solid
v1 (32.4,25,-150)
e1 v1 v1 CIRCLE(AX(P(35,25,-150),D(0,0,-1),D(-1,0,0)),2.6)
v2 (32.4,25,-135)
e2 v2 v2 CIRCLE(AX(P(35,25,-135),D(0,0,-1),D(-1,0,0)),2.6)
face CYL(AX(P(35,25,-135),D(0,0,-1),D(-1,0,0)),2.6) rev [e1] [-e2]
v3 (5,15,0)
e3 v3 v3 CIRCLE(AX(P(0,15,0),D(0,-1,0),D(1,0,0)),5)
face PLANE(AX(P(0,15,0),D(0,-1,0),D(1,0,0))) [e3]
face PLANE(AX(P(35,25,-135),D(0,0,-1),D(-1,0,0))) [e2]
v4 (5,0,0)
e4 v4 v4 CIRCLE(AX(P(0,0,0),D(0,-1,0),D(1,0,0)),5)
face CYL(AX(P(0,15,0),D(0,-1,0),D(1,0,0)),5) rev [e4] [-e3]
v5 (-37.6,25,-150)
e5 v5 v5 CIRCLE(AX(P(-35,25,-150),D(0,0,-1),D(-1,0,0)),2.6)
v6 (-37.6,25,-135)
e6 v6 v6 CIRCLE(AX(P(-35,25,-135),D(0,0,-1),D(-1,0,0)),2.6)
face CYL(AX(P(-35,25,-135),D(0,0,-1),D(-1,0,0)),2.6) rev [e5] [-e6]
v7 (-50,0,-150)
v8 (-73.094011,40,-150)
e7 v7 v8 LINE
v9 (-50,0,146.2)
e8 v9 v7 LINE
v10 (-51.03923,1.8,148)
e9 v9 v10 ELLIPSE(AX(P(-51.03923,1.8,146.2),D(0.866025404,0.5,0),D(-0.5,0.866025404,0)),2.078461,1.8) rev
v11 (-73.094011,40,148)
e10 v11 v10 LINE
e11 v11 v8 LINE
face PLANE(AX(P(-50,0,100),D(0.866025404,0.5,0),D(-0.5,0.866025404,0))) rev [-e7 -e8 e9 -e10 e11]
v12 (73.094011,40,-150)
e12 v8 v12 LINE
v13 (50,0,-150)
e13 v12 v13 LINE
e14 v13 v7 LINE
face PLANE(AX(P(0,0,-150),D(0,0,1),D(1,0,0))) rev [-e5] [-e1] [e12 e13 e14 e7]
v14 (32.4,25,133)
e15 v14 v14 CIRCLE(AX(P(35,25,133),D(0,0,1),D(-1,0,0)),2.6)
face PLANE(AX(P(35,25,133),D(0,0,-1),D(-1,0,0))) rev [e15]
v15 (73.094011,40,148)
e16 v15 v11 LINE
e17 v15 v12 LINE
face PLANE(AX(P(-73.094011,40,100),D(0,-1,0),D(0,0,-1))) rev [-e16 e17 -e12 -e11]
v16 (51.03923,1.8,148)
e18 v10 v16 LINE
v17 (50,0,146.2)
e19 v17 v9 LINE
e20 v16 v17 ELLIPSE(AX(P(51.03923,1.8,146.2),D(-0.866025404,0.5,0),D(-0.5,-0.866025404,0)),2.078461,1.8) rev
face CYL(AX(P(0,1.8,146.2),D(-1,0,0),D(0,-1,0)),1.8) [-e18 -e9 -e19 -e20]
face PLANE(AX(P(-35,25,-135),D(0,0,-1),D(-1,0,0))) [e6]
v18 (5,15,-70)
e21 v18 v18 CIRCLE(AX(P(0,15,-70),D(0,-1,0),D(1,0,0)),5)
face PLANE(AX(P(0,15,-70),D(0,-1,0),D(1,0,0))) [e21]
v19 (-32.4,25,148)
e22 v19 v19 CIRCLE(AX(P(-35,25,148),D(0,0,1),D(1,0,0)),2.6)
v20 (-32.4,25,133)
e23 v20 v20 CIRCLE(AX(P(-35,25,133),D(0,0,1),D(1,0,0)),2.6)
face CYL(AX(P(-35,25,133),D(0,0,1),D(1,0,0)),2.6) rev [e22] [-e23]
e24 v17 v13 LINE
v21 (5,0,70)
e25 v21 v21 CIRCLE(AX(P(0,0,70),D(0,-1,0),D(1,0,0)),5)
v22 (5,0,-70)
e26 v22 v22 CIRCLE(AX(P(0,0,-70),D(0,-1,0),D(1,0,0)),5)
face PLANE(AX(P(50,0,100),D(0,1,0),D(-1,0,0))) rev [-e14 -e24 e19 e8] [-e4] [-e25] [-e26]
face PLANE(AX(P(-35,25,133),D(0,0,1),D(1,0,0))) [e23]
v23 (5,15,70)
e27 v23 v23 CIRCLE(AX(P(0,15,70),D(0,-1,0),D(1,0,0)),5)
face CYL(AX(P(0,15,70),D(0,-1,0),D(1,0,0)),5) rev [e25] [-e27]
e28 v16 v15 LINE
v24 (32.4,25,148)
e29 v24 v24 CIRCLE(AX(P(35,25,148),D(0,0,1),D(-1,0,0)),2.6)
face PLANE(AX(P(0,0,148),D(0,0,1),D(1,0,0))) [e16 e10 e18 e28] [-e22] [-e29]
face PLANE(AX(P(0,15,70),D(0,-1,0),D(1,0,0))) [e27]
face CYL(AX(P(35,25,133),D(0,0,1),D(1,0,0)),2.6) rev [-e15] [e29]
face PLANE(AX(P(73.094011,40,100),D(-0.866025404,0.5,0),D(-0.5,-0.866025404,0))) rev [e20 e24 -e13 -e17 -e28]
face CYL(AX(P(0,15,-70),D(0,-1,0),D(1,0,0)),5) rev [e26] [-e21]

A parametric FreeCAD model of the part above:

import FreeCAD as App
import Part
import Sketcher

V = App.Vector
Q = App.Units.Quantity


def edges_at(feature, points):
    """Names of the edges that pass closest to the given points."""
    edges = feature.Shape.Edges
    near = lambda p: min(range(len(edges)), key=lambda i: edges[i].distToShape(Part.Vertex(*p))[0])
    return sorted({f"Edge{near(p) + 1}" for p in points})

doc = App.newDocument("Part")
body = doc.addObject("PartDesign::Body", "Body")

sketch1 = body.newObject("Sketcher::SketchObject", "Sketch")
sketch1.AttachmentSupport = (doc.getObject("XY_Plane"), [""])
sketch1.MapMode = "FlatFace"
sketch1.addGeometry([
    Part.LineSegment(V(-50, 0, 0), V(50, 0, 0)),
    Part.LineSegment(V(50, 0, 0), V(73, 40, 0)),
    Part.LineSegment(V(73, 40, 0), V(-73, 40, 0)),
    Part.LineSegment(V(-73, 40, 0), V(-50, 0, 0)),
], False)
sketch1.addConstraint([
    Sketcher.Constraint("Coincident", 0, 2, 1, 1),
    Sketcher.Constraint("Coincident", 1, 2, 2, 1),
    Sketcher.Constraint("Coincident", 2, 2, 3, 1),
    Sketcher.Constraint("Coincident", 3, 2, 0, 1),
    Sketcher.Constraint("Horizontal", 0),
    Sketcher.Constraint("Horizontal", 2),
    Sketcher.Constraint("Symmetric", 0, 2, 3, 2, -1, 1),
    Sketcher.Constraint("Equal", 1, 3),
    Sketcher.Constraint("DistanceX", 0, 1, 0, 2, 100.0),
    Sketcher.Constraint("Angle", 1, Q("60 deg")),
    Sketcher.Constraint("DistanceY", -1, 1, 1, 2, 40.0),
])
pad1 = body.newObject("PartDesign::Pad", "Pad")
pad1.Profile = sketch1
pad1.Length = 200
pad1.Midplane = True

sketch2 = body.newObject("Sketcher::SketchObject", "Sketch001")
sketch2.AttachmentSupport = (doc.getObject("XZ_Plane"), [""])
sketch2.MapMode = "FlatFace"
sketch2.addGeometry([
    Part.Circle(V(0, 70, 0), V(0, 0, 1), 5),
    Part.Circle(V(0, -70, 0), V(0, 0, 1), 5),
    Part.Circle(V(0, 0, 0), V(0, 0, 1), 5),
], False)
sketch2.addConstraint([
    Sketcher.Constraint("Coincident", 2, 3, -1, 1),
    Sketcher.Constraint("Equal", 0, 1),
    Sketcher.Constraint("Equal", 1, 2),
    Sketcher.Constraint("Symmetric", 0, 3, 1, 3, -1, 1),
    Sketcher.Constraint("PointOnObject", 0, 3, -2),
    Sketcher.Constraint("Diameter", 0, 10.0),
    Sketcher.Constraint("DistanceY", -1, 1, 0, 3, 70.0),
])
pocket1 = body.newObject("PartDesign::Pocket", "Pocket")
pocket1.Profile = sketch2
pocket1.Length = 15

sketch3 = body.newObject("Sketcher::SketchObject", "Sketch002")
sketch3.AttachmentSupport = (doc.getObject("XY_Plane"), [""])
sketch3.MapMode = "FlatFace"
sketch3.AttachmentOffset = App.Placement(V(0, 0, -100), App.Rotation())
sketch3.addGeometry([
    Part.LineSegment(V(50, 0, 0), V(-50, 0, 0)),
    Part.LineSegment(V(-50, 0, 0), V(-73, 40, 0)),
    Part.LineSegment(V(-73, 40, 0), V(73, 40, 0)),
    Part.LineSegment(V(73, 40, 0), V(50, 0, 0)),
], False)
sketch3.addConstraint([
    Sketcher.Constraint("Coincident", 0, 2, 1, 1),
    Sketcher.Constraint("Coincident", 1, 2, 2, 1),
    Sketcher.Constraint("Coincident", 2, 2, 3, 1),
    Sketcher.Constraint("Coincident", 3, 2, 0, 1),
    Sketcher.Constraint("Horizontal", 0),
    Sketcher.Constraint("Horizontal", 2),
    Sketcher.Constraint("Symmetric", 0, 2, 3, 2, -1, 1),
    Sketcher.Constraint("Equal", 1, 3),
    Sketcher.Constraint("DistanceX", 0, 2, 0, 1, 100.0),
    Sketcher.Constraint("Angle", 1, Q("120 deg")),
    Sketcher.Constraint("DistanceY", -1, 1, 1, 2, 40.0),
])
pad2 = body.newObject("PartDesign::Pad", "Pad001")
pad2.Profile = sketch3
pad2.Length = 50
pad2.Reversed = True

sketch4 = body.newObject("Sketcher::SketchObject", "Sketch003")
sketch4.AttachmentSupport = (doc.getObject("XY_Plane"), [""])
sketch4.MapMode = "FlatFace"
sketch4.AttachmentOffset = App.Placement(V(0, 0, 100), App.Rotation())
sketch4.addGeometry([
    Part.LineSegment(V(-50, 0, 0), V(50, 0, 0)),
    Part.LineSegment(V(50, 0, 0), V(73, 40, 0)),
    Part.LineSegment(V(73, 40, 0), V(-73, 40, 0)),
    Part.LineSegment(V(-73, 40, 0), V(-50, 0, 0)),
], False)
sketch4.addConstraint([
    Sketcher.Constraint("Coincident", 0, 2, 1, 1),
    Sketcher.Constraint("Coincident", 1, 2, 2, 1),
    Sketcher.Constraint("Coincident", 2, 2, 3, 1),
    Sketcher.Constraint("Coincident", 3, 2, 0, 1),
    Sketcher.Constraint("Horizontal", 0),
    Sketcher.Constraint("Horizontal", 2),
    Sketcher.Constraint("Symmetric", 0, 2, 3, 2, -1, 1),
    Sketcher.Constraint("Equal", 1, 3),
    Sketcher.Constraint("DistanceX", 0, 1, 0, 2, 100.0),
    Sketcher.Constraint("Angle", 1, Q("60 deg")),
    Sketcher.Constraint("DistanceY", -1, 1, 1, 2, 40.0),
])
pad3 = body.newObject("PartDesign::Pad", "Pad002")
pad3.Profile = sketch4
pad3.Length = 48
doc.recompute()

fillet = body.newObject("PartDesign::Fillet", "Fillet")
fillet.Base = (pad3, edges_at(pad3, [(0, 0, 148)]))
fillet.Radius = 1.8

sketch5 = body.newObject("Sketcher::SketchObject", "Sketch004")
sketch5.AttachmentSupport = (doc.getObject("XY_Plane"), [""])
sketch5.MapMode = "FlatFace"
sketch5.AttachmentOffset = App.Placement(V(0, 0, 148), App.Rotation())
sketch5.addGeometry([
    Part.Circle(V(-35, 25, 0), V(0, 0, 1), 2.6),
    Part.Circle(V(35, 25, 0), V(0, 0, 1), 2.6),
], False)
sketch5.addConstraint([
    Sketcher.Constraint("Equal", 0, 1),
    Sketcher.Constraint("Symmetric", 0, 3, 1, 3, -2),
    Sketcher.Constraint("Diameter", 0, 5.2),
    Sketcher.Constraint("DistanceX", 0, 3, -1, 1, 35.0),
    Sketcher.Constraint("DistanceY", -1, 1, 0, 3, 25.0),
])
pocket2 = body.newObject("PartDesign::Pocket", "Pocket001")
pocket2.Profile = sketch5
pocket2.Length = 15

sketch6 = body.newObject("Sketcher::SketchObject", "Sketch005")
sketch6.AttachmentSupport = (doc.getObject("XY_Plane"), [""])
sketch6.MapMode = "FlatFace"
sketch6.AttachmentOffset = App.Placement(V(0, 0, -150), App.Rotation())
sketch6.addGeometry([
    Part.Circle(V(35, 25, 0), V(0, 0, 1), 2.6),
    Part.Circle(V(-35, 25, 0), V(0, 0, 1), 2.6),
], False)
sketch6.addConstraint([
    Sketcher.Constraint("Equal", 0, 1),
    Sketcher.Constraint("Symmetric", 0, 3, 1, 3, -2),
    Sketcher.Constraint("Diameter", 0, 5.2),
    Sketcher.Constraint("DistanceX", -1, 1, 0, 3, 35.0),
    Sketcher.Constraint("DistanceY", -1, 1, 0, 3, 25.0),
])
pocket3 = body.newObject("PartDesign::Pocket", "Pocket002")
pocket3.Profile = sketch6
pocket3.Length = 15
pocket3.Reversed = True

doc.recompute()
